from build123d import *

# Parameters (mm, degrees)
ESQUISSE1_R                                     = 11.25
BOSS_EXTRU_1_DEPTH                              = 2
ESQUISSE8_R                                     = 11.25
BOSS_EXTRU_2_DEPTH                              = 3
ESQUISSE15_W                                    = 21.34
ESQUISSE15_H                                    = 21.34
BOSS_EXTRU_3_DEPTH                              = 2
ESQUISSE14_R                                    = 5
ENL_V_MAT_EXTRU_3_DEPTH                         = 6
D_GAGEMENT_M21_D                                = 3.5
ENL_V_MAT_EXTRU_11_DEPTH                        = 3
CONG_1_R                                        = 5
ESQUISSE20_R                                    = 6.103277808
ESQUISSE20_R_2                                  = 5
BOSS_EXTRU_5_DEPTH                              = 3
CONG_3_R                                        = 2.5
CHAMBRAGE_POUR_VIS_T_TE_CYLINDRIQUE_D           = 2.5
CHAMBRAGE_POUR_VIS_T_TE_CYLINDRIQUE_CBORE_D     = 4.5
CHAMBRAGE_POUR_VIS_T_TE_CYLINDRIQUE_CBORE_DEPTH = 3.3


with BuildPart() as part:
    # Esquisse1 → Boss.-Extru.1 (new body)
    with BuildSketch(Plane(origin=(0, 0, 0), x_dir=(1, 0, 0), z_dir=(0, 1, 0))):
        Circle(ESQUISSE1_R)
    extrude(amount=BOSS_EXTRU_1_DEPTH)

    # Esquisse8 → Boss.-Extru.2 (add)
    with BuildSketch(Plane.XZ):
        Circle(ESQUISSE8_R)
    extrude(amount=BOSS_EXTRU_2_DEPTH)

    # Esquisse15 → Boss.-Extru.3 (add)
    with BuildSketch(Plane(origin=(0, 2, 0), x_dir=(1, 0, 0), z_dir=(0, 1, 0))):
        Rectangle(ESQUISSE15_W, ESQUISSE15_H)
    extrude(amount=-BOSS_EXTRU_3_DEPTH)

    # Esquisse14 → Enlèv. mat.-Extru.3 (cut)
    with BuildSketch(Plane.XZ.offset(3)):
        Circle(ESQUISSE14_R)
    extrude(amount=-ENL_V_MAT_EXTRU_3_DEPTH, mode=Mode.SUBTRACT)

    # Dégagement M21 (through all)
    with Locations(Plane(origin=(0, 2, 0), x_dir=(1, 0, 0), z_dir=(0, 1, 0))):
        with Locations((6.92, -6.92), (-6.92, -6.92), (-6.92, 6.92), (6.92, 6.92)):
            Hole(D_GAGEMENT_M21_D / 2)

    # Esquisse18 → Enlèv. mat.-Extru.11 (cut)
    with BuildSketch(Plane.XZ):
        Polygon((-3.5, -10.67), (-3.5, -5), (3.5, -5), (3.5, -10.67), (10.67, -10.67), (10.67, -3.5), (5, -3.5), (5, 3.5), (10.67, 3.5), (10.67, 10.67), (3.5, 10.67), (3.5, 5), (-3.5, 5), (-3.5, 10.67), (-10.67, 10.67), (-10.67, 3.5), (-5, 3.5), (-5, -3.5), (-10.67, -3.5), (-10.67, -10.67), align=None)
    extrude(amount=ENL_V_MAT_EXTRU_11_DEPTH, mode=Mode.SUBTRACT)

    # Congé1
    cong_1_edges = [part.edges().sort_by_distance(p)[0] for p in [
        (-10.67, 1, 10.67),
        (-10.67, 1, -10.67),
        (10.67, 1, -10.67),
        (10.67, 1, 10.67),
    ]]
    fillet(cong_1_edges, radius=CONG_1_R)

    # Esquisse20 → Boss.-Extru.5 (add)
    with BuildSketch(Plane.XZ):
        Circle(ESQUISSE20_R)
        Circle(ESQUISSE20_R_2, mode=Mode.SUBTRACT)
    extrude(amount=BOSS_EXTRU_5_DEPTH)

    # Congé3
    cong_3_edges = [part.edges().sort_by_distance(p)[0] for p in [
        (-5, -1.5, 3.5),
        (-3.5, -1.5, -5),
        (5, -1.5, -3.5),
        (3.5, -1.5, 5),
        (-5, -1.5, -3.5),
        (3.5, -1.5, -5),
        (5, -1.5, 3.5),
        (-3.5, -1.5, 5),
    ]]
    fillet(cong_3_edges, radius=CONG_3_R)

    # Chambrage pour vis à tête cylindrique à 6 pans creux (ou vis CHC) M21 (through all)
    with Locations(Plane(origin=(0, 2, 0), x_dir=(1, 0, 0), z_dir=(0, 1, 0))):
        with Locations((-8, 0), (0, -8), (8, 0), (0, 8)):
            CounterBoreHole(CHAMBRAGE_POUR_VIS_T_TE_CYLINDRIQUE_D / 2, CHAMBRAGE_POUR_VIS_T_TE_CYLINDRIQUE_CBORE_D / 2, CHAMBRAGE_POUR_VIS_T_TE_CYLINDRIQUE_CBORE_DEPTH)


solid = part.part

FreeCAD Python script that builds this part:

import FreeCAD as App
import Part
import Sketcher

V = App.Vector


def edges_at(feature, points):
    """Names of the edges that pass closest to the given points."""
    edges = feature.Shape.Edges
    near = lambda p: min(range(len(edges)), key=lambda i: edges[i].distToShape(Part.Vertex(*p))[0])
    return sorted({f"Edge{near(p) + 1}" for p in points})


def add_polygon(sketch, points):
    """Adds a closed chain of lines whose ends are joined by coincident constraints."""
    first, n = sketch.GeometryCount, len(points)
    for a, b in zip(points, points[1:] + points[:1]):
        sketch.addGeometry(Part.LineSegment(App.Vector(*a, 0), App.Vector(*b, 0)), False)
    for i in range(n):
        sketch.addConstraint(Sketcher.Constraint("Coincident", first + i, 2, first + (i + 1) % n, 1))

doc = App.newDocument("Part")
body = doc.addObject("PartDesign::Body", "Body")

sketch1 = body.newObject("Sketcher::SketchObject", "Sketch")
sketch1.AttachmentSupport = (doc.getObject("XZ_Plane"), [""])
sketch1.MapMode = "FlatFace"
sketch1.addGeometry(Part.Circle(V(0, 0, 0), V(0, 0, 1), 11), False)
sketch1.addConstraint(Sketcher.Constraint("Coincident", 0, 3, -1, 1))
sketch1.addConstraint(Sketcher.Constraint("Diameter", 0, 22.5))
pad1 = body.newObject("PartDesign::Pad", "Pad")
pad1.Profile = sketch1
pad1.Length = 2
pad1.Reversed = True

sketch2 = body.newObject("Sketcher::SketchObject", "Sketch001")
sketch2.AttachmentSupport = (doc.getObject("XZ_Plane"), [""])
sketch2.MapMode = "FlatFace"
sketch2.addGeometry(Part.Circle(V(0, 0, 0), V(0, 0, 1), 11), False)
sketch2.addConstraint(Sketcher.Constraint("Coincident", 0, 3, -1, 1))
sketch2.addConstraint(Sketcher.Constraint("Diameter", 0, 22.5))
pad2 = body.newObject("PartDesign::Pad", "Pad001")
pad2.Profile = sketch2
pad2.Length = 3

sketch3 = body.newObject("Sketcher::SketchObject", "Sketch002")
sketch3.AttachmentSupport = (doc.getObject("XZ_Plane"), [""])
sketch3.MapMode = "FlatFace"
sketch3.AttachmentOffset = App.Placement(V(0, 0, -2), App.Rotation())
add_polygon(sketch3, [(-11, -11), (-11, 11), (11, 11), (11, -11)])
sketch3.addConstraint(Sketcher.Constraint("Vertical", 0))
sketch3.addConstraint(Sketcher.Constraint("Horizontal", 1))
sketch3.addConstraint(Sketcher.Constraint("Vertical", 2))
sketch3.addConstraint(Sketcher.Constraint("Horizontal", 3))
sketch3.addConstraint(Sketcher.Constraint("Symmetric", 0, 2, 2, 2, -1, 1))
sketch3.addConstraint(Sketcher.Constraint("Equal", 3, 0))
sketch3.addConstraint(Sketcher.Constraint("DistanceX", 1, 1, 1, 2, 21.34))
pad3 = body.newObject("PartDesign::Pad", "Pad002")
pad3.Profile = sketch3
pad3.Length = 2

sketch4 = body.newObject("Sketcher::SketchObject", "Sketch003")
sketch4.AttachmentSupport = (doc.getObject("XZ_Plane"), [""])
sketch4.MapMode = "FlatFace"
sketch4.AttachmentOffset = App.Placement(V(0, 0, 3), App.Rotation())
sketch4.addGeometry(Part.Circle(V(0, 0, 0), V(0, 0, 1), 5), False)
sketch4.addConstraint(Sketcher.Constraint("Coincident", 0, 3, -1, 1))
sketch4.addConstraint(Sketcher.Constraint("Diameter", 0, 10.0))
pocket1 = body.newObject("PartDesign::Pocket", "Pocket")
pocket1.Profile = sketch4
pocket1.Length = 6

sketch5 = body.newObject("Sketcher::SketchObject", "Sketch004")
sketch5.AttachmentSupport = (doc.getObject("XZ_Plane"), [""])
sketch5.MapMode = "FlatFace"
sketch5.AttachmentOffset = App.Placement(V(0, 0, -2), App.Rotation())
sketch5.addGeometry(Part.Circle(V(6.9, 6.9, 0), V(0, 0, 1), 1.8), False)
sketch5.addGeometry(Part.Circle(V(-6.9, 6.9, 0), V(0, 0, 1), 1.8), False)
sketch5.addGeometry(Part.Circle(V(-6.9, -6.9, 0), V(0, 0, 1), 1.8), False)
sketch5.addGeometry(Part.Circle(V(6.9, -6.9, 0), V(0, 0, 1), 1.8), False)
sketch5.addConstraint(Sketcher.Constraint("Equal", 0, 1))
sketch5.addConstraint(Sketcher.Constraint("Equal", 1, 2))
sketch5.addConstraint(Sketcher.Constraint("Equal", 2, 3))
sketch5.addConstraint(Sketcher.Constraint("Symmetric", 0, 3, 2, 3, -1, 1))
sketch5.addConstraint(Sketcher.Constraint("Symmetric", 1, 3, 3, 3, -1, 1))
sketch5.addConstraint(Sketcher.Constraint("Symmetric", 0, 3, 1, 3, -2))
sketch5.addConstraint(Sketcher.Constraint("Diameter", 0, 3.5))
sketch5.addConstraint(Sketcher.Constraint("DistanceX", -1, 1, 0, 3, 6.92))
sketch5.addConstraint(Sketcher.Constraint("DistanceY", -1, 1, 0, 3, 6.92))
doc.recompute()
hole = body.newObject("PartDesign::Hole", "Hole")
hole.Profile = sketch5
hole.ThreadType = "None"
hole.Diameter = 3.5
hole.DepthType = "ThroughAll"
hole.Reversed = True

sketch6 = body.newObject("Sketcher::SketchObject", "Sketch005")
sketch6.AttachmentSupport = (doc.getObject("XZ_Plane"), [""])
sketch6.MapMode = "FlatFace"
add_polygon(sketch6, [(-4, -11), (-4, -5), (4, -5), (4, -11), (11, -11), (11, -4), (5, -4), (5, 4), (11, 4), (11, 11), (4, 11), (4, 5), (-4, 5), (-4, 11), (-11, 11), (-11, 4), (-5, 4), (-5, -4), (-11, -4), (-11, -11)])
sketch6.addConstraint(Sketcher.Constraint("Vertical", 0))
sketch6.addConstraint(Sketcher.Constraint("Horizontal", 1))
sketch6.addConstraint(Sketcher.Constraint("Vertical", 2))
sketch6.addConstraint(Sketcher.Constraint("Horizontal", 3))
sketch6.addConstraint(Sketcher.Constraint("Vertical", 4))
sketch6.addConstraint(Sketcher.Constraint("Horizontal", 5))
sketch6.addConstraint(Sketcher.Constraint("Vertical", 6))
sketch6.addConstraint(Sketcher.Constraint("Horizontal", 7))
sketch6.addConstraint(Sketcher.Constraint("Vertical", 8))
sketch6.addConstraint(Sketcher.Constraint("Horizontal", 9))
sketch6.addConstraint(Sketcher.Constraint("Vertical", 10))
sketch6.addConstraint(Sketcher.Constraint("Horizontal", 11))
sketch6.addConstraint(Sketcher.Constraint("Vertical", 12))
sketch6.addConstraint(Sketcher.Constraint("Horizontal", 13))
sketch6.addConstraint(Sketcher.Constraint("Vertical", 14))
sketch6.addConstraint(Sketcher.Constraint("Horizontal", 15))
sketch6.addConstraint(Sketcher.Constraint("Vertical", 16))
sketch6.addConstraint(Sketcher.Constraint("Horizontal", 17))
sketch6.addConstraint(Sketcher.Constraint("Vertical", 18))
sketch6.addConstraint(Sketcher.Constraint("Horizontal", 19))
sketch6.addConstraint(Sketcher.Constraint("Symmetric", 0, 2, 10, 2, -1, 1))
sketch6.addConstraint(Sketcher.Constraint("Symmetric", 2, 2, 12, 2, -1, 1))
sketch6.addConstraint(Sketcher.Constraint("Symmetric", 4, 2, 14, 2, -1, 1))
sketch6.addConstraint(Sketcher.Constraint("Symmetric", 6, 2, 16, 2, -1, 1))
sketch6.addConstraint(Sketcher.Constraint("Symmetric", 8, 2, 18, 2, -1, 1))
sketch6.addConstraint(Sketcher.Constraint("Symmetric", 9, 2, 12, 2, -2))
sketch6.addConstraint(Sketcher.Constraint("Symmetric", 7, 2, 14, 2, -2))
sketch6.addConstraint(Sketcher.Constraint("Equal", 17, 0))
sketch6.addConstraint(Sketcher.Constraint("Equal", 19, 4))
sketch6.addConstraint(Sketcher.Constraint("Equal", 11, 6))
sketch6.addConstraint(Sketcher.Constraint("DistanceX", 1, 1, 1, 2, 7.0))
sketch6.addConstraint(Sketcher.Constraint("DistanceY", 0, 2, -1, 1, 5.0))
sketch6.addConstraint(Sketcher.Constraint("DistanceX", 3, 1, 3, 2, 7.17))
pocket2 = body.newObject("PartDesign::Pocket", "Pocket001")
pocket2.Profile = sketch6
pocket2.Length = 3
pocket2.Reversed = True
doc.recompute()

fillet = body.newObject("PartDesign::Fillet", "Fillet")
fillet.Base = (pocket2, edges_at(pocket2, [
    (-10.67, 1, 10.67),
    (-10.67, 1, -10.67),
    (10.67, 1, -10.67),
    (10.67, 1, 10.67),
]))
fillet.Radius = 5

sketch7 = body.newObject("Sketcher::SketchObject", "Sketch006")
sketch7.AttachmentSupport = (doc.getObject("XZ_Plane"), [""])
sketch7.MapMode = "FlatFace"
sketch7.addGeometry(Part.Circle(V(0, 0, 0), V(0, 0, 1), 6), False)
sketch7.addGeometry(Part.Circle(V(0, 0, 0), V(0, 0, 1), 5), False)
sketch7.addConstraint(Sketcher.Constraint("Coincident", 0, 3, -1, 1))
sketch7.addConstraint(Sketcher.Constraint("Coincident", 1, 3, -1, 1))
sketch7.addConstraint(Sketcher.Constraint("Diameter", 1, 10.0))
sketch7.addConstraint(Sketcher.Constraint("Diameter", 0, 12.206556))
pad4 = body.newObject("PartDesign::Pad", "Pad003")
pad4.Profile = sketch7
pad4.Length = 3
doc.recompute()

fillet2 = body.newObject("PartDesign::Fillet", "Fillet001")
fillet2.Base = (pad4, edges_at(pad4, [
    (-5, -1.5, 3.5),
    (-3.5, -1.5, -5),
    (5, -1.5, -3.5),
    (3.5, -1.5, 5),
    (-5, -1.5, -3.5),
    (3.5, -1.5, -5),
    (5, -1.5, 3.5),
    (-3.5, -1.5, 5),
]))
fillet2.Radius = 2.5

sketch8 = body.newObject("Sketcher::SketchObject", "Sketch007")
sketch8.AttachmentSupport = (doc.getObject("XZ_Plane"), [""])
sketch8.MapMode = "FlatFace"
sketch8.AttachmentOffset = App.Placement(V(0, 0, -2), App.Rotation())
sketch8.addGeometry(Part.Circle(V(-8, 0, 0), V(0, 0, 1), 1.2), False)
sketch8.addGeometry(Part.Circle(V(0, 8, 0), V(0, 0, 1), 1.2), False)
sketch8.addGeometry(Part.Circle(V(8, 0, 0), V(0, 0, 1), 1.2), False)
sketch8.addGeometry(Part.Circle(V(0, -8, 0), V(0, 0, 1), 1.2), False)
sketch8.addConstraint(Sketcher.Constraint("Equal", 0, 1))
sketch8.addConstraint(Sketcher.Constraint("Equal", 1, 2))
sketch8.addConstraint(Sketcher.Constraint("Equal", 2, 3))
sketch8.addConstraint(Sketcher.Constraint("Symmetric", 0, 3, 2, 3, -1, 1))
sketch8.addConstraint(Sketcher.Constraint("Symmetric", 1, 3, 3, 3, -1, 1))
sketch8.addConstraint(Sketcher.Constraint("PointOnObject", 0, 3, -1))
sketch8.addConstraint(Sketcher.Constraint("PointOnObject", 1, 3, -2))
sketch8.addConstraint(Sketcher.Constraint("Diameter", 0, 2.5))
sketch8.addConstraint(Sketcher.Constraint("DistanceX", 0, 3, -1, 1, 8.0))
sketch8.addConstraint(Sketcher.Constraint("DistanceY", -1, 1, 1, 3, 8.0))
doc.recompute()
hole2 = body.newObject("PartDesign::Hole", "Hole001")
hole2.Profile = sketch8
hole2.ThreadType = "None"
hole2.Diameter = 2.5
hole2.DepthType = "ThroughAll"
hole2.HoleCutType = "Counterbore"
hole2.HoleCutDiameter = 4.5
hole2.HoleCutDepth = 3.3
hole2.Reversed = True

doc.recompute()
